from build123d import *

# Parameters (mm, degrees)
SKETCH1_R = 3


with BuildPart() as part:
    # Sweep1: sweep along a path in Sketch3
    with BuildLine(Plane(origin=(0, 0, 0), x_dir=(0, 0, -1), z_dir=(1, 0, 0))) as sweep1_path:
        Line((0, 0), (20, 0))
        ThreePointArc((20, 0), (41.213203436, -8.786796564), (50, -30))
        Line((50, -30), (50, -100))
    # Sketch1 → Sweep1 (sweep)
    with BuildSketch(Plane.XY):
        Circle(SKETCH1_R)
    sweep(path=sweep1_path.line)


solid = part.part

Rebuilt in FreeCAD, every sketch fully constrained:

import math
import FreeCAD as App
import Part
import Sketcher

doc = App.newDocument("Part")
body = doc.addObject("PartDesign::Body", "Body")

# Sketch on XY plane
sketch1 = body.newObject("Sketcher::SketchObject", "Sketch")
sketch1.AttachmentSupport = (doc.getObject("XY_Plane"), [""])
sketch1.MapMode = "FlatFace"
sketch1.addGeometry(Part.Circle(App.Vector(0, 0, 0), App.Vector(0, 0, 1), 3), False)
sketch1.addConstraint(Sketcher.Constraint("Coincident", 0, 3, -1, 1))
sketch1.addConstraint(Sketcher.Constraint("Diameter", 0, 6.0))

# Sketch on YZ plane
sketch2 = body.newObject("Sketcher::SketchObject", "Sketch001")
sketch2.AttachmentSupport = (doc.getObject("YZ_Plane"), [""])
sketch2.MapMode = "FlatFace"
sketch2.addGeometry(Part.LineSegment(App.Vector(0, 0, 0), App.Vector(0, -20, 0)), False)
sketch2.addGeometry(Part.ArcOfCircle(Part.Circle(App.Vector(-30, -20, 0), App.Vector(0, 0, 1), 30), math.radians(-90), math.radians(0)), False)
sketch2.addGeometry(Part.LineSegment(App.Vector(-30, -50, 0), App.Vector(-100, -50, 0)), False)
sketch2.addConstraint(Sketcher.Constraint("Tangent", 0, 2, 1, 2))
sketch2.addConstraint(Sketcher.Constraint("Tangent", 1, 1, 2, 1))
sketch2.addConstraint(Sketcher.Constraint("Vertical", 0))
sketch2.addConstraint(Sketcher.Constraint("Horizontal", 2))
sketch2.addConstraint(Sketcher.Constraint("Coincident", 0, 1, -1, 1))
sketch2.addConstraint(Sketcher.Constraint("Radius", 1, 30.0))
sketch2.addConstraint(Sketcher.Constraint("DistanceX", 2, 2, 2, 1, 70.0))
sketch2.addConstraint(Sketcher.Constraint("DistanceY", 0, 2, 0, 1, 20.0))
doc.recompute()

additivepipe = body.newObject("PartDesign::AdditivePipe", "AdditivePipe")
additivepipe.Profile = sketch1
additivepipe.Spine = (sketch2, ["Edge1", "Edge2", "Edge3"])

doc.recompute()
